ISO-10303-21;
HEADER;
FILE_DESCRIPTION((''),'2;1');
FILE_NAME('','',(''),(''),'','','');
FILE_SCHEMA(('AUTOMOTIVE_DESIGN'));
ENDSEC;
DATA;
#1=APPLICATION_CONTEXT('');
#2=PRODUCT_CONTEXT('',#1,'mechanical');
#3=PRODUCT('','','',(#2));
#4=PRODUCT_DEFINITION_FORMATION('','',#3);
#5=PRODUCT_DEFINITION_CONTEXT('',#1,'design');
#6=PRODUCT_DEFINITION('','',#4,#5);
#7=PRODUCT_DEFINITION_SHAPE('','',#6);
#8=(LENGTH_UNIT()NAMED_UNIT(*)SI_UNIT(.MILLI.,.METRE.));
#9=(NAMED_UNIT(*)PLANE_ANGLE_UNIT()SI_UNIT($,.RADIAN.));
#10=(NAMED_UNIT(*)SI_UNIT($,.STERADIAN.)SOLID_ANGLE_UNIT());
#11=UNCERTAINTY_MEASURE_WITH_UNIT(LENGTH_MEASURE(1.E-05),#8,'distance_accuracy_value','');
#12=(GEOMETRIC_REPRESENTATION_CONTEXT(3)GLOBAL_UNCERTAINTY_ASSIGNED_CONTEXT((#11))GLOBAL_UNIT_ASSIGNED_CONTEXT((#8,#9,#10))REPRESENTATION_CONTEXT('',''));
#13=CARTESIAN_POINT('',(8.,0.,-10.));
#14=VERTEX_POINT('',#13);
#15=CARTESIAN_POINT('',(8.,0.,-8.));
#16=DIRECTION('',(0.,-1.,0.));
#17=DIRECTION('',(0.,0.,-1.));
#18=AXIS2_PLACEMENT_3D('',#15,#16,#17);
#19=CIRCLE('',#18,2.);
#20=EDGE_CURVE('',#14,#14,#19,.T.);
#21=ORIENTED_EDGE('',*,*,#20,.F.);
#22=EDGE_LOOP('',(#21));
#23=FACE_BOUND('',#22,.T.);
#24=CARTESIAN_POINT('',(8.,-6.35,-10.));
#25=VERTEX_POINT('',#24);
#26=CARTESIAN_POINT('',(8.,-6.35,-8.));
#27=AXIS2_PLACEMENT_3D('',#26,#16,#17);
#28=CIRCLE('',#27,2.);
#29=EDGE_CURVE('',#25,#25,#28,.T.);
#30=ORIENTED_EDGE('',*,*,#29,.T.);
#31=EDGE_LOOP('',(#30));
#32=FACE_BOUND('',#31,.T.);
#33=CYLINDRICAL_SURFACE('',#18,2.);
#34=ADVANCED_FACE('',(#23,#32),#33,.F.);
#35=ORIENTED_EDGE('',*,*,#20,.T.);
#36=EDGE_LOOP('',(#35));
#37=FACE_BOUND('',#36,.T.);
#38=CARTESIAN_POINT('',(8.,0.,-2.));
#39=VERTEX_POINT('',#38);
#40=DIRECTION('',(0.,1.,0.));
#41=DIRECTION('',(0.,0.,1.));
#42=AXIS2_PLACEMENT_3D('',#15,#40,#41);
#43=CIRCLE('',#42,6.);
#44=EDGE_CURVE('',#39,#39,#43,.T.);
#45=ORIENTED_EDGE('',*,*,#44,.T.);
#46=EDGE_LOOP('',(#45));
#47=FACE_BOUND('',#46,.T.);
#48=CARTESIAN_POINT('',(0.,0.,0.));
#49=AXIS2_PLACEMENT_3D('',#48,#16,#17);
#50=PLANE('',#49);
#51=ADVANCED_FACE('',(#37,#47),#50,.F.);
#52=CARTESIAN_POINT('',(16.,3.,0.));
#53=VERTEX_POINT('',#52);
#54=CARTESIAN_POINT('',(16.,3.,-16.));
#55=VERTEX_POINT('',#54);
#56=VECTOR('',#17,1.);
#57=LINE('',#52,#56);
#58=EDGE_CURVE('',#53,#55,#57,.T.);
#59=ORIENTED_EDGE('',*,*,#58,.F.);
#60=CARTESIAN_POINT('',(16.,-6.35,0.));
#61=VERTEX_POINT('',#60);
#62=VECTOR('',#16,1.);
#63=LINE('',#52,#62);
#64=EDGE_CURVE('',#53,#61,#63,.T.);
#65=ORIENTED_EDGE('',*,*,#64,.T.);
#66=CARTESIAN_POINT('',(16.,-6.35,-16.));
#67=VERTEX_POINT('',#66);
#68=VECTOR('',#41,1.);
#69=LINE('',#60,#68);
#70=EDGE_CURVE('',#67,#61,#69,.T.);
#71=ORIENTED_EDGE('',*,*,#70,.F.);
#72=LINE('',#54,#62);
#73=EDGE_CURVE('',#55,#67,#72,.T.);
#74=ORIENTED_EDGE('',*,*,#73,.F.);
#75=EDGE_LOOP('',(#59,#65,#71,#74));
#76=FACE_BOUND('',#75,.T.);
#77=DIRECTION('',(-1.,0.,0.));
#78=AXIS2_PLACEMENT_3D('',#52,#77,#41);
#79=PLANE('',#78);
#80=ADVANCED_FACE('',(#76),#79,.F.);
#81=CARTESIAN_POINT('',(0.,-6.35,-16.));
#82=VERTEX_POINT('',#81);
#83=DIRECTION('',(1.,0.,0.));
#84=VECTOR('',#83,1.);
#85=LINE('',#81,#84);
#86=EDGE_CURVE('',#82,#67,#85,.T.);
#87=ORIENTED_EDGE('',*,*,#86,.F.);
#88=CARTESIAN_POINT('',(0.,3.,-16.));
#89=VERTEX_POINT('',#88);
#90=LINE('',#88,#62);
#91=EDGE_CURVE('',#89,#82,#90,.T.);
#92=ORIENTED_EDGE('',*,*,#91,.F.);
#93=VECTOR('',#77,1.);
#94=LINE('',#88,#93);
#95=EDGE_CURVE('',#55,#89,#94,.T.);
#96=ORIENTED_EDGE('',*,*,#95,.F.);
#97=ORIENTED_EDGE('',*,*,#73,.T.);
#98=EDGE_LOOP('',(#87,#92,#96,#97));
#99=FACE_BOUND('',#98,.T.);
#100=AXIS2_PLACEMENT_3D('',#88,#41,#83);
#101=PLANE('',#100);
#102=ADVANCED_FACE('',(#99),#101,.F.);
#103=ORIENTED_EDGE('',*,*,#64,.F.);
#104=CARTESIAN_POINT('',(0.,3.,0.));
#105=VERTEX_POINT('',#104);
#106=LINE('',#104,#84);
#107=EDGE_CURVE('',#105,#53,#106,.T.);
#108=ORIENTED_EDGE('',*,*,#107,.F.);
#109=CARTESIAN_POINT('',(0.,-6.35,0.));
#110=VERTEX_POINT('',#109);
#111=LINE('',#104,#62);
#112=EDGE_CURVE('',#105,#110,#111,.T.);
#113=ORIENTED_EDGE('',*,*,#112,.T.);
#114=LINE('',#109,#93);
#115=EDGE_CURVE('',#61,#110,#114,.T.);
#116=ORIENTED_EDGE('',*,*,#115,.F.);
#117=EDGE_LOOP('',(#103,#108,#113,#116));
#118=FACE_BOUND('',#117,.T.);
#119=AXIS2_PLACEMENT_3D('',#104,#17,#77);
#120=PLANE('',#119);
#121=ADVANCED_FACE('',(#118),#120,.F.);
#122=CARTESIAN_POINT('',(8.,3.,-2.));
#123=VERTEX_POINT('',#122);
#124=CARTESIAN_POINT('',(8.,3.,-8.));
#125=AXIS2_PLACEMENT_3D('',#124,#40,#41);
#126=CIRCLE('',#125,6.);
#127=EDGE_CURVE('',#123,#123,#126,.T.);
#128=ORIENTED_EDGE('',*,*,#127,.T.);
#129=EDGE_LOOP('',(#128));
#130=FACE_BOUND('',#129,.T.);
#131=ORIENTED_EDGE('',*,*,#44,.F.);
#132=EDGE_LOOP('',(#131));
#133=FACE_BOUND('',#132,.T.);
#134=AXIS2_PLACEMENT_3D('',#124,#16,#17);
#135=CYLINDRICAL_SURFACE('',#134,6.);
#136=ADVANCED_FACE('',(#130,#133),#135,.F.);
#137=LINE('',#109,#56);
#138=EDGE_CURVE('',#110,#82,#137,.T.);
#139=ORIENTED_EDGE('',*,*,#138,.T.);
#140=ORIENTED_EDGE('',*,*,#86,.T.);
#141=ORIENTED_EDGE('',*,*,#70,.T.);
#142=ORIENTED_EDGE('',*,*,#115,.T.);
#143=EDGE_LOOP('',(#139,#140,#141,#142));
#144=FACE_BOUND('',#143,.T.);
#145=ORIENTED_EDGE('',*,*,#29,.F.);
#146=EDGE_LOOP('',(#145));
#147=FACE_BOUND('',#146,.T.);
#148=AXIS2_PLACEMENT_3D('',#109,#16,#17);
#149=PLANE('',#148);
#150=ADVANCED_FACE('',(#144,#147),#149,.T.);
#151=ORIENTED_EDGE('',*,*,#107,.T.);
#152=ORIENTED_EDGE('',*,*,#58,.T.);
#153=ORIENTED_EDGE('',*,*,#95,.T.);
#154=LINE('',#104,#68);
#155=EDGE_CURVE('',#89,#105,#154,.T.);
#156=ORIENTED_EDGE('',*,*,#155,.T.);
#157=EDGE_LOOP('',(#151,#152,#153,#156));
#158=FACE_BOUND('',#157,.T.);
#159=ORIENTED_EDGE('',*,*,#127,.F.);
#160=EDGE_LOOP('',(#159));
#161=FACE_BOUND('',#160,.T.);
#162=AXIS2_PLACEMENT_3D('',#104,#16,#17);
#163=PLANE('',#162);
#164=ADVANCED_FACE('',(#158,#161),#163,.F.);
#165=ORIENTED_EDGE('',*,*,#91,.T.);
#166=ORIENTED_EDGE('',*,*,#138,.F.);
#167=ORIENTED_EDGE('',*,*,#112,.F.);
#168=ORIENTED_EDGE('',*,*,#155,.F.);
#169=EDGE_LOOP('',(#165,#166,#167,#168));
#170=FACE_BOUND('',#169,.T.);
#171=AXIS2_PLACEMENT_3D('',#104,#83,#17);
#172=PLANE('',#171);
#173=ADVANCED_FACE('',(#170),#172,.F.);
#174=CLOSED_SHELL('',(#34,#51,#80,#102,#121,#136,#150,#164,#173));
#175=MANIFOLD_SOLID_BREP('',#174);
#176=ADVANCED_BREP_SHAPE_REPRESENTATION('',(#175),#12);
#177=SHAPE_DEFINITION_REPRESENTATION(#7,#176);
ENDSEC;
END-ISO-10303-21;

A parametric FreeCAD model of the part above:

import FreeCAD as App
import Part
import Sketcher
from FreeCAD import Vector
Q = App.Units.Quantity


def add_polygon(sketch, points):
    """Adds a closed chain of lines whose ends are joined by coincident constraints."""
    first, n = sketch.GeometryCount, len(points)
    for a, b in zip(points, points[1:] + points[:1]):
        sketch.addGeometry(Part.LineSegment(App.Vector(*a, 0), App.Vector(*b, 0)), False)
    for i in range(n):
        sketch.addConstraint(Sketcher.Constraint("Coincident", first + i, 2, first + (i + 1) % n, 1))

doc = App.newDocument("Part")
params = doc.addObject("Spreadsheet::Sheet", "Params")
for row, (alias, value) in enumerate([
    ("sketch1_diameter", "12 mm"),
    ("sketch1_width", "16 mm"),
    ("pad1_length", "3 mm"),
    ("sketch2_width", "16 mm"),
    ("pad2_length", "6.35 mm"),
    ("sketch3_diameter", "4 mm"),
    ("pocket1_length", "6.35 mm"),
], start=1):
    params.set(f"A{row}", alias)
    params.set(f"B{row}", "=" + value)
    params.setAlias(f"B{row}", alias)

body = doc.addObject("PartDesign::Body", "Body")

# Sketch on XZ plane
sketch1 = body.newObject("Sketcher::SketchObject", "Sketch")
sketch1.AttachmentSupport = (doc.getObject("XZ_Plane"), [""])
sketch1.MapMode = "FlatFace"
add_polygon(sketch1, [(0, -16), (0, 0), (16, 0), (16, -16)])  # lines 0-3
sketch1.addGeometry(Part.Circle(Vector(8, -8, 0), Vector(0, 0, 1), 6), False)  # 4
sketch1.addConstraint([
    Sketcher.Constraint("Vertical", 0),
    Sketcher.Constraint("Horizontal", 1),
    Sketcher.Constraint("Vertical", 2),
    Sketcher.Constraint("Horizontal", 3),
    Sketcher.Constraint("Coincident", 0, 2, -1, 1),
    Sketcher.Constraint("Equal", 3, 0),
    Sketcher.Constraint("Diameter", 4, Q("12 mm")),
    Sketcher.Constraint("DistanceX", 1, 1, 1, 2, Q("16 mm")),
    Sketcher.Constraint("DistanceX", -1, 1, 4, 3, Q("8 mm")),
    Sketcher.Constraint("DistanceY", 4, 3, -1, 1, Q("8 mm")),
])
sketch1.setExpression("Constraints[10]", "Params.sketch1_diameter")
sketch1.setExpression("Constraints[11]", "Params.sketch1_width")
pad1 = body.newObject("PartDesign::Pad", "Pad")
pad1.Profile = sketch1
pad1.setExpression("Length", "Params.pad1_length")
pad1.Reversed = True

# Sketch on XZ plane
sketch2 = body.newObject("Sketcher::SketchObject", "Sketch001")
sketch2.AttachmentSupport = (doc.getObject("XZ_Plane"), [""])
sketch2.MapMode = "FlatFace"
add_polygon(sketch2, [(0, 0), (0, -16), (16, -16), (16, 0)])  # lines 0-3
sketch2.addConstraint([
    Sketcher.Constraint("Vertical", 0),
    Sketcher.Constraint("Horizontal", 1),
    Sketcher.Constraint("Vertical", 2),
    Sketcher.Constraint("Horizontal", 3),
    Sketcher.Constraint("Coincident", 3, 2, -1, 1),
    Sketcher.Constraint("Equal", 3, 0),
    Sketcher.Constraint("DistanceX", 1, 1, 1, 2, Q("16 mm")),
])
sketch2.setExpression("Constraints[10]", "Params.sketch2_width")
pad2 = body.newObject("PartDesign::Pad", "Pad001")
pad2.Profile = sketch2
pad2.setExpression("Length", "Params.pad2_length")

# Sketch on XZ plane
sketch3 = body.newObject("Sketcher::SketchObject", "Sketch002")
sketch3.AttachmentSupport = (doc.getObject("XZ_Plane"), [""])
sketch3.MapMode = "FlatFace"
sketch3.AttachmentOffset = App.Placement(Vector(0, 0, 6.35), App.Rotation())
sketch3.addGeometry(Part.Circle(Vector(8, -8, 0), Vector(0, 0, 1), 2), False)
sketch3.addConstraint([
    Sketcher.Constraint("Diameter", 0, Q("4 mm")),
    Sketcher.Constraint("DistanceX", -1, 1, 0, 3, Q("8 mm")),
    Sketcher.Constraint("DistanceY", 0, 3, -1, 1, Q("8 mm")),
])
sketch3.setExpression("Constraints[0]", "Params.sketch3_diameter")
pocket1 = body.newObject("PartDesign::Pocket", "Pocket")
pocket1.Profile = sketch3
pocket1.setExpression("Length", "Params.pocket1_length")

doc.recompute()
